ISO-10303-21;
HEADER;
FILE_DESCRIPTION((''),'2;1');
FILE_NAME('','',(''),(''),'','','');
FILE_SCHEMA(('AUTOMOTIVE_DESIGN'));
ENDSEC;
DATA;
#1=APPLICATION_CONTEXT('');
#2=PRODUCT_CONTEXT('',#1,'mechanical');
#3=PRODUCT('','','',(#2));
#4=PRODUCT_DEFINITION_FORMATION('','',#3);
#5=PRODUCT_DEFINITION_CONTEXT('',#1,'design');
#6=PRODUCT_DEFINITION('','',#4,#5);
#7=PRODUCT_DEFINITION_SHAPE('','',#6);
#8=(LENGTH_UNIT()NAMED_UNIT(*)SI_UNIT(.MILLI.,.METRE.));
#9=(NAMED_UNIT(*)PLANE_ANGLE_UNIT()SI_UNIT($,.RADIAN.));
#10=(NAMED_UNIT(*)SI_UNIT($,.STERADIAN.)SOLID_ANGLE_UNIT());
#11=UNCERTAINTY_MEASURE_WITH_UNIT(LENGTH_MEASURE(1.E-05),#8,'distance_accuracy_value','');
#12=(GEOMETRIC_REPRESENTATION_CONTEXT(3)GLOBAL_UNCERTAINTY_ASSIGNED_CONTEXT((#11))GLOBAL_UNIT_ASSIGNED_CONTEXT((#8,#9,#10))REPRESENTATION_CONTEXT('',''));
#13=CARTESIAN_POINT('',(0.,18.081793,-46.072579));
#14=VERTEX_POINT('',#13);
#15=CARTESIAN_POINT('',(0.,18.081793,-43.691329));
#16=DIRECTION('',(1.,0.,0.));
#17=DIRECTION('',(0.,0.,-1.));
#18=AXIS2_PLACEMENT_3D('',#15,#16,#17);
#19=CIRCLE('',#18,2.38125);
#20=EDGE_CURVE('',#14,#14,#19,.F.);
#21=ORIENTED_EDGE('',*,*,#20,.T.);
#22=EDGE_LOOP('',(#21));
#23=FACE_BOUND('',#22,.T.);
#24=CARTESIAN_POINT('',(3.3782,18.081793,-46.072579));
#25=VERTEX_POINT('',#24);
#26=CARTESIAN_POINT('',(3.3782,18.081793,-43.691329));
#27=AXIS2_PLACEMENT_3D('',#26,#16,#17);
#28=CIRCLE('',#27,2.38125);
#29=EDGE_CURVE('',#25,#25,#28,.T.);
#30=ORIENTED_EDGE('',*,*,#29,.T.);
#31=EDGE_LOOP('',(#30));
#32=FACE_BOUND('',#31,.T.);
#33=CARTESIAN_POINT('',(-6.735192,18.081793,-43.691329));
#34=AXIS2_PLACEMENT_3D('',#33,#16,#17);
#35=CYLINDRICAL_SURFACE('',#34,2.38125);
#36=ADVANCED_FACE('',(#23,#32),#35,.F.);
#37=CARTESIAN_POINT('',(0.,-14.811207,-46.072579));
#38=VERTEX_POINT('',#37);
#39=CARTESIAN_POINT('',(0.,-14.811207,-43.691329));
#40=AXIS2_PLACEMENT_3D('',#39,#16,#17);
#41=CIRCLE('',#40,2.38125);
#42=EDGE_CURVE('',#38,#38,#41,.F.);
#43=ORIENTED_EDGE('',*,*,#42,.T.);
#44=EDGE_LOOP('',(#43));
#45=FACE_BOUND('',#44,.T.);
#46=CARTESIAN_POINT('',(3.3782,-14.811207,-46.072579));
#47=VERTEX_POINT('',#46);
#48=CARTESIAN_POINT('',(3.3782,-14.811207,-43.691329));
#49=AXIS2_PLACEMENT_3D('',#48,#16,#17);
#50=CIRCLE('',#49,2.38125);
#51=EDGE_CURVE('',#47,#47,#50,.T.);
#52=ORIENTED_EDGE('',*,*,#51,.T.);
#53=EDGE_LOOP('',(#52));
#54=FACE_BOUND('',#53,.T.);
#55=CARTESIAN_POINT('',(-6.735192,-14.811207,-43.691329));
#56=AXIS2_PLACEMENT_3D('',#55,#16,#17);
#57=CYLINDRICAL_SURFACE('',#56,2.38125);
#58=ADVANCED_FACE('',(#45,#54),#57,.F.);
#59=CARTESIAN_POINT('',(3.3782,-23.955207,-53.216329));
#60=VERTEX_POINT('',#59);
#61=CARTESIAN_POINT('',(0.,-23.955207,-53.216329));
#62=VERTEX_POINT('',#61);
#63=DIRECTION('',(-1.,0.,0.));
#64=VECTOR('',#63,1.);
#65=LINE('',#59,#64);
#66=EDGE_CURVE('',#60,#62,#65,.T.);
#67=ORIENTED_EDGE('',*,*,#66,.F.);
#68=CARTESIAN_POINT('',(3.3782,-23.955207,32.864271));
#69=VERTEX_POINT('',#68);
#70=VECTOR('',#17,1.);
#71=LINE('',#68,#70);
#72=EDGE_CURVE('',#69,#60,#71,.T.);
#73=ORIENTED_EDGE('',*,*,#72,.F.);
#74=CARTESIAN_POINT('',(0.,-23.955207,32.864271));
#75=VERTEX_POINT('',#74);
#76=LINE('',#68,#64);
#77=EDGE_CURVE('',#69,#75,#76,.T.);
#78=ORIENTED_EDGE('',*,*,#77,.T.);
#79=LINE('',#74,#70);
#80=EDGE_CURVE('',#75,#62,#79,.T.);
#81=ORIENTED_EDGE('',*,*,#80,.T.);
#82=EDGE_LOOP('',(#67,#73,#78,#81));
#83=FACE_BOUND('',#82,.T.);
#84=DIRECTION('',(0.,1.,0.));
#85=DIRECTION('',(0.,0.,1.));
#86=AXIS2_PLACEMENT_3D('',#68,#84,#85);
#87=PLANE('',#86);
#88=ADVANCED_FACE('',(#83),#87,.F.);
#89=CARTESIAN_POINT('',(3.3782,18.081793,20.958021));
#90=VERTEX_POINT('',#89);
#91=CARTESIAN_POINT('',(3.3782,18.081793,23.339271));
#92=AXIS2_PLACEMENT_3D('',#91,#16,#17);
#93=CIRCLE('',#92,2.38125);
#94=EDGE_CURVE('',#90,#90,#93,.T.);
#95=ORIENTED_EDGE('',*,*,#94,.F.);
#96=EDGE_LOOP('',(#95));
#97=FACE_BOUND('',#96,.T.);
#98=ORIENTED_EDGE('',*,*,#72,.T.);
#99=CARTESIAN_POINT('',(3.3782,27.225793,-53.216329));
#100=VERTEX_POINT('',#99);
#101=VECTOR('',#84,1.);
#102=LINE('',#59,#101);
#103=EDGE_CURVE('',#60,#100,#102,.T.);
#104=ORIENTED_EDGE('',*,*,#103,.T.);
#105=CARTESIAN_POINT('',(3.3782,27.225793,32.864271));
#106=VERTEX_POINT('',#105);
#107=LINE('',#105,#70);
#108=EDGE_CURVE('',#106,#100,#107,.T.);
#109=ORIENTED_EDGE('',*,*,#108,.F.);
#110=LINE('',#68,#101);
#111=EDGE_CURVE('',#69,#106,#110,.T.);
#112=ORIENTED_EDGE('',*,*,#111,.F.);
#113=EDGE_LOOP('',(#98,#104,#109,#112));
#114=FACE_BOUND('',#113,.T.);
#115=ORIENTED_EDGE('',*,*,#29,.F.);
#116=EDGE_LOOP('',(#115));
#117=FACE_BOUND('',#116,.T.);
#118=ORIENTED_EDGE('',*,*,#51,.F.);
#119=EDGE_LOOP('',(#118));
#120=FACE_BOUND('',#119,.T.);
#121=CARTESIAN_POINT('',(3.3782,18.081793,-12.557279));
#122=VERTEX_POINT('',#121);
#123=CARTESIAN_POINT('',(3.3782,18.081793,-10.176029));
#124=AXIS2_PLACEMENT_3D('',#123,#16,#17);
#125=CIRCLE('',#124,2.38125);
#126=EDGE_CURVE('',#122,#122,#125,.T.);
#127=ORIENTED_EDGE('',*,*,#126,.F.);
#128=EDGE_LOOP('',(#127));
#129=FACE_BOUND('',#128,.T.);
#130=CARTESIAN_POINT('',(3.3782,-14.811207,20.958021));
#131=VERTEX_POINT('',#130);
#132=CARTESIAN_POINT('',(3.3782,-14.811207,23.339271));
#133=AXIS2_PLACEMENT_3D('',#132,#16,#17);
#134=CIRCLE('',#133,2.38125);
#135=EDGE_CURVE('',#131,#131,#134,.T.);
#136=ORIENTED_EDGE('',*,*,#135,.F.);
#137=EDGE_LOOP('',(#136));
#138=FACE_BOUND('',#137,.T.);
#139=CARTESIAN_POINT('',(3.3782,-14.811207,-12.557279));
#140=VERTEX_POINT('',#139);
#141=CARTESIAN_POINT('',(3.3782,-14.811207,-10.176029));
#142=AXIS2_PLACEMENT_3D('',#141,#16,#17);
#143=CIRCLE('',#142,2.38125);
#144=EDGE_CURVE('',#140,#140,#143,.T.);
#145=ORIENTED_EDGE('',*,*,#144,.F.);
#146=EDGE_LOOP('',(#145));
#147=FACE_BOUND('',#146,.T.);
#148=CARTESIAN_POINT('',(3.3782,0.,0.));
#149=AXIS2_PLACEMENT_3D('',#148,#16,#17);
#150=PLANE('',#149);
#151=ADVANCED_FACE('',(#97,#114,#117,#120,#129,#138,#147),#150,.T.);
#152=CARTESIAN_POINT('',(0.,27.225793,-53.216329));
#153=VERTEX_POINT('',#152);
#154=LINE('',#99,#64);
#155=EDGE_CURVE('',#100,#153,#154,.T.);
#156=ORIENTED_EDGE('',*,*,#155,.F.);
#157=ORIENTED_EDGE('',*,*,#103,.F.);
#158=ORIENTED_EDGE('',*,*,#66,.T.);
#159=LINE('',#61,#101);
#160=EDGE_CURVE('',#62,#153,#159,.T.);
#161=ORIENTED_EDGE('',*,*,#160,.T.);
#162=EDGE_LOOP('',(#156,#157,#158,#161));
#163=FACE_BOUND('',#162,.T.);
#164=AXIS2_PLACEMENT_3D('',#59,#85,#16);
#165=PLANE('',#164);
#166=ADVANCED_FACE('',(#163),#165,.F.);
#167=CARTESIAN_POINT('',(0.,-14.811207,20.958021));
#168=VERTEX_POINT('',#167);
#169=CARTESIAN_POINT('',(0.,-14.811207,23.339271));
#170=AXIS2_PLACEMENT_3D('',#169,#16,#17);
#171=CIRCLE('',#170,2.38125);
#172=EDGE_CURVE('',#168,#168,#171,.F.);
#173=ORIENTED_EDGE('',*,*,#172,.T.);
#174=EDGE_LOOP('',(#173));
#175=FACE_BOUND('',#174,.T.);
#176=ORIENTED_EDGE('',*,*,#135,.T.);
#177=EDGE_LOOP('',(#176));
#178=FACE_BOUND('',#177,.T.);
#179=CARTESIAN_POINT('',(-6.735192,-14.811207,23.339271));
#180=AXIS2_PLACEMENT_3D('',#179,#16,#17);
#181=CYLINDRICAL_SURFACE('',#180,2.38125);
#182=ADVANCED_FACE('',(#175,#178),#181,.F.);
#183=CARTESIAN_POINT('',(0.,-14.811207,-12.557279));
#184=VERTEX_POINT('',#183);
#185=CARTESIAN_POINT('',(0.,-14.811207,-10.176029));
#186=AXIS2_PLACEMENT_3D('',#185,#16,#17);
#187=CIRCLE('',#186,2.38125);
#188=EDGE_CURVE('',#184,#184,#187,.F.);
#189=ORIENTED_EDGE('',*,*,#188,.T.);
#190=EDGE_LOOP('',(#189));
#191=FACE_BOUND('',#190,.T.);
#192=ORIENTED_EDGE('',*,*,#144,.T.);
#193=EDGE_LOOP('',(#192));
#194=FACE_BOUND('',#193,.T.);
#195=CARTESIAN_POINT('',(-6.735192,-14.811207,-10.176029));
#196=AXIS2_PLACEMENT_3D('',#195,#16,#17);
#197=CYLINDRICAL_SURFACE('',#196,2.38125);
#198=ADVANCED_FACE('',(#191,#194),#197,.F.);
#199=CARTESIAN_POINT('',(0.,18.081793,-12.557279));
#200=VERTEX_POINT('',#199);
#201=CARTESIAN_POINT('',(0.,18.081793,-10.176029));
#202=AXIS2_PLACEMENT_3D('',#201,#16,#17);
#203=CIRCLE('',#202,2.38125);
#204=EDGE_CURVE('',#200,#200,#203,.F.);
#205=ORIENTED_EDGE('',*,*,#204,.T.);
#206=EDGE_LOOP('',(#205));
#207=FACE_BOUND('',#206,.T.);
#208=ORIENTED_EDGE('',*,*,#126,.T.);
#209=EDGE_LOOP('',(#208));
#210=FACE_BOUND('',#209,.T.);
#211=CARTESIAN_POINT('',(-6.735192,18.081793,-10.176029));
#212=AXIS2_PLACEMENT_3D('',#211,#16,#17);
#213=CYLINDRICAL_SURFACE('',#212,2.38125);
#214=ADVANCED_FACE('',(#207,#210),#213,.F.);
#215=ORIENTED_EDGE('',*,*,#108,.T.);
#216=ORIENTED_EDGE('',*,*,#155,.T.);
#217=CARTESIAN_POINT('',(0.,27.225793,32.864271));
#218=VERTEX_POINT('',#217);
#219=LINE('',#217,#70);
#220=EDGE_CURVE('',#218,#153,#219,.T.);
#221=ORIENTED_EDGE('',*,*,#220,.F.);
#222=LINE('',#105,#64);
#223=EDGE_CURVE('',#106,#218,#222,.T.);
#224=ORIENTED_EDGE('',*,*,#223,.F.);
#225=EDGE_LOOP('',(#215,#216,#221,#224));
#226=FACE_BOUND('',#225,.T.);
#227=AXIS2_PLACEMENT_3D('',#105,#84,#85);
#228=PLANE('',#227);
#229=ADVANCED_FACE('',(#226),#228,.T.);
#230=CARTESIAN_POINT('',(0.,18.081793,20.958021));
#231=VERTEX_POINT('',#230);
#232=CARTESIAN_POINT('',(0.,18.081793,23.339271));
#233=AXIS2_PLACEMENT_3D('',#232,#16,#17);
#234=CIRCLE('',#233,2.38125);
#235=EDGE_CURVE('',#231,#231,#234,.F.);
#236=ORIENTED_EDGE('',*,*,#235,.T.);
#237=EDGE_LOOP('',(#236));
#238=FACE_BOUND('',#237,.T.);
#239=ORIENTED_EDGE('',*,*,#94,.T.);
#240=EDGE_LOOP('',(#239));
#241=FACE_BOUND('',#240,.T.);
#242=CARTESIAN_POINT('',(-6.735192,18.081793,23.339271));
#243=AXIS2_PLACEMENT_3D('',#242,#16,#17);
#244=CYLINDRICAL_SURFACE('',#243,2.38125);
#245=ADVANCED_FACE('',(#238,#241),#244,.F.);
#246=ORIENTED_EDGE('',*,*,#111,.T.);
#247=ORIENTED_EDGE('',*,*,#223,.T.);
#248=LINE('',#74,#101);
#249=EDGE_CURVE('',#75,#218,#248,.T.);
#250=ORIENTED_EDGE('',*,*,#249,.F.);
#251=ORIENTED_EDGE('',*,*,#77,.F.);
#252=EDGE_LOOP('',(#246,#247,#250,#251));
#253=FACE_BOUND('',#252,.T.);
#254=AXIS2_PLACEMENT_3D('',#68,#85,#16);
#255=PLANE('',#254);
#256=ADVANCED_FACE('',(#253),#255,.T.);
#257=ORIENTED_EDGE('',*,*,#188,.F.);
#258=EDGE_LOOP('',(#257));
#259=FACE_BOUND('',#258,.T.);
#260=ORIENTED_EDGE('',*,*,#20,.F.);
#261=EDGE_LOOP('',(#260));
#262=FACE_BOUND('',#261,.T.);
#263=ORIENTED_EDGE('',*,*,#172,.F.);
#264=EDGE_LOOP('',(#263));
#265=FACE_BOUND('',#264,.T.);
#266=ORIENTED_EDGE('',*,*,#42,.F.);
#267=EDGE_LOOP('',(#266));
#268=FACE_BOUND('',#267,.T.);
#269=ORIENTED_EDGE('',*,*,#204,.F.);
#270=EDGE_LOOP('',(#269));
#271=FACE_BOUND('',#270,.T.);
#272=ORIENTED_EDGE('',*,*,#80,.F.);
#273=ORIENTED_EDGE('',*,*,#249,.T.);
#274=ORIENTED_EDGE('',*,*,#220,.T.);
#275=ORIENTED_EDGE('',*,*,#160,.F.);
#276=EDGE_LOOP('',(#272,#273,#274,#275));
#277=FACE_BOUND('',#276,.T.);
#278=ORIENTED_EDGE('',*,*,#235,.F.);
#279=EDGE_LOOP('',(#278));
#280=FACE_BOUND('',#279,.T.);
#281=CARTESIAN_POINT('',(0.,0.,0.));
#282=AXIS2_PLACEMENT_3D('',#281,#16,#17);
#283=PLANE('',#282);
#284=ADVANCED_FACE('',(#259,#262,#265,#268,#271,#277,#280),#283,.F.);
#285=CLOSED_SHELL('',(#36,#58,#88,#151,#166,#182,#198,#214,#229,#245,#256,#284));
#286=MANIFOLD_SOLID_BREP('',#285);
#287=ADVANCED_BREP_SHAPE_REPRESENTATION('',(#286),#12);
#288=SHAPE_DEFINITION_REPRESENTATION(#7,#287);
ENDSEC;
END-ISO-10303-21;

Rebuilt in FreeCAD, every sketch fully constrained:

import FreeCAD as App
import Part
import Sketcher

V = App.Vector
Q = App.Units.Quantity

doc = App.newDocument("Part")
body = doc.addObject("PartDesign::Body", "Body")

sketch1 = body.newObject("Sketcher::SketchObject", "Sketch")
sketch1.AttachmentSupport = (doc.getObject("YZ_Plane"), [""])
sketch1.MapMode = "FlatFace"
sketch1.addGeometry(Part.LineSegment(V(27.225793, 32.864271, 0), V(-23.955207, 32.864271, 0)), False)
sketch1.addGeometry(Part.LineSegment(V(-23.955207, 32.864271, 0), V(-23.955207, -53.216329, 0)), False)
sketch1.addGeometry(Part.LineSegment(V(-23.955207, -53.216329, 0), V(27.225793, -53.216329, 0)), False)
sketch1.addGeometry(Part.LineSegment(V(27.225793, -53.216329, 0), V(27.225793, 32.864271, 0)), False)
sketch1.addConstraint(Sketcher.Constraint("Coincident", 0, 2, 1, 1))
sketch1.addConstraint(Sketcher.Constraint("Coincident", 1, 2, 2, 1))
sketch1.addConstraint(Sketcher.Constraint("Coincident", 2, 2, 3, 1))
sketch1.addConstraint(Sketcher.Constraint("Coincident", 3, 2, 0, 1))
sketch1.addConstraint(Sketcher.Constraint("Horizontal", 0))
sketch1.addConstraint(Sketcher.Constraint("Vertical", 1))
sketch1.addConstraint(Sketcher.Constraint("Horizontal", 2))
sketch1.addConstraint(Sketcher.Constraint("Vertical", 3))
sketch1.addConstraint(Sketcher.Constraint("DistanceX", 0, 2, 0, 1, Q("2.015 in")))
sketch1.addConstraint(Sketcher.Constraint("DistanceY", 1, 2, 1, 1, Q("3.389 in")))
sketch1.addConstraint(Sketcher.Constraint("DistanceY", -1, 1, 0, 2, Q("32.864271 mm")))
sketch1.addConstraint(Sketcher.Constraint("DistanceX", 0, 2, -1, 1, Q("23.955207 mm")))
pad1 = body.newObject("PartDesign::Pad", "Pad")
pad1.Profile = sketch1
pad1.Length = Q("0.133 in")

sketch2 = body.newObject("Sketcher::SketchObject", "Sketch001")
sketch2.AttachmentSupport = (doc.getObject("YZ_Plane"), [""])
sketch2.MapMode = "FlatFace"
sketch2.AttachmentOffset = App.Placement(V(0, 0, 0.133 * 25.4), App.Rotation())
sketch2.addGeometry(Part.Circle(V(18.081793, 23.339271, 0), V(0, 0, 1), 2.38125), False)
sketch2.addGeometry(Part.Circle(V(18.081793, -43.691329, 0), V(0, 0, 1), 2.38125), False)
sketch2.addGeometry(Part.Circle(V(-14.811207, -43.691329, 0), V(0, 0, 1), 2.38125), False)
sketch2.addGeometry(Part.Circle(V(-14.811207, 23.339271, 0), V(0, 0, 1), 2.38125), False)
sketch2.addGeometry(Part.Circle(V(18.081793, -10.176029, 0), V(0, 0, 1), 2.38125), False)
sketch2.addGeometry(Part.Circle(V(-14.811207, -10.176029, 0), V(0, 0, 1), 2.38125), False)
sketch2.addConstraint(Sketcher.Constraint("Equal", 0, 1))
sketch2.addConstraint(Sketcher.Constraint("Equal", 1, 2))
sketch2.addConstraint(Sketcher.Constraint("Equal", 2, 3))
sketch2.addConstraint(Sketcher.Constraint("Equal", 3, 4))
sketch2.addConstraint(Sketcher.Constraint("Equal", 4, 5))
sketch2.addConstraint(Sketcher.Constraint("Horizontal", 1, 3, 2, 3))
sketch2.addConstraint(Sketcher.Constraint("Horizontal", 0, 3, 3, 3))
sketch2.addConstraint(Sketcher.Constraint("Horizontal", 4, 3, 5, 3))
sketch2.addConstraint(Sketcher.Constraint("Vertical", 0, 3, 1, 3))
sketch2.addConstraint(Sketcher.Constraint("Vertical", 2, 3, 3, 3))
sketch2.addConstraint(Sketcher.Constraint("Vertical", 1, 3, 4, 3))
sketch2.addConstraint(Sketcher.Constraint("Vertical", 3, 3, 5, 3))
sketch2.addConstraint(Sketcher.Constraint("Diameter", 0, Q("0.1875 in")))
sketch2.addConstraint(Sketcher.Constraint("DistanceY", 1, 3, 0, 3, Q("2.639 in")))
sketch2.addConstraint(Sketcher.Constraint("DistanceX", 2, 3, 1, 3, Q("1.295 in")))
sketch2.addConstraint(Sketcher.Constraint("DistanceY", 4, 3, 0, 3, Q("1.3195 in")))
sketch2.addConstraint(Sketcher.Constraint("DistanceY", -1, 1, 0, 3, Q("23.339271 mm")))
sketch2.addConstraint(Sketcher.Constraint("DistanceX", -1, 1, 0, 3, Q("18.081793 mm")))
pocket1 = body.newObject("PartDesign::Pocket", "Pocket")
pocket1.Profile = sketch2
pocket1.Length = Q("0.133 in")

doc.recompute()
